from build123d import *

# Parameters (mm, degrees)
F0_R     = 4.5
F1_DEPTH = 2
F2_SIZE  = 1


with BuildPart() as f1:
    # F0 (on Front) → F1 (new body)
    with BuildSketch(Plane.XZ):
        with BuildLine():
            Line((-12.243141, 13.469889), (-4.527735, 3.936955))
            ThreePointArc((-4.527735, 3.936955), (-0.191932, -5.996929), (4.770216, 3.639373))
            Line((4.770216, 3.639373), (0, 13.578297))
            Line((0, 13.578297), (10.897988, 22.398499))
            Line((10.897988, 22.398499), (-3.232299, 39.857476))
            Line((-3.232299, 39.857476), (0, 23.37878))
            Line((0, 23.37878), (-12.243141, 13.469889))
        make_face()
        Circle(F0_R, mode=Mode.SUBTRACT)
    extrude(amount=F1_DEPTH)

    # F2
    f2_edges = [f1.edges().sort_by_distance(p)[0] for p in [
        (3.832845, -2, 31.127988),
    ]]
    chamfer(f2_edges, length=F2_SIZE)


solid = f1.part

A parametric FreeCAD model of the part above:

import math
import FreeCAD as App
import Part
import Sketcher

V = App.Vector
Q = App.Units.Quantity


def edges_at(feature, points):
    """Names of the edges that pass closest to the given points."""
    edges = feature.Shape.Edges
    near = lambda p: min(range(len(edges)), key=lambda i: edges[i].distToShape(Part.Vertex(*p))[0])
    return sorted({f"Edge{near(p) + 1}" for p in points})

doc = App.newDocument("Part")
body = doc.addObject("PartDesign::Body", "Body")

# Sketch on XZ plane
sketch1 = body.newObject("Sketcher::SketchObject", "Sketch")
sketch1.AttachmentSupport = (doc.getObject("XZ_Plane"), [""])
sketch1.MapMode = "FlatFace"
sketch1.addGeometry([
    Part.LineSegment(V(-12.243141, 13.469889, 0), V(-4.527735, 3.936955, 0)),  # 0
    Part.ArcOfCircle(Part.Circle(V(0, 0, 0), V(0, 0, 1), 6), math.radians(138.992397), math.radians(397.341339)),  # 1
    Part.LineSegment(V(4.770216, 3.639373, 0), V(0, 13.578297, 0)),  # 2
    Part.LineSegment(V(0, 13.578297, 0), V(10.897988, 22.398499, 0)),  # 3
    Part.LineSegment(V(10.897988, 22.398499, 0), V(-3.232299, 39.857476, 0)),  # 4
    Part.LineSegment(V(-3.232299, 39.857476, 0), V(0, 23.37878, 0)),  # 5
    Part.LineSegment(V(0, 23.37878, 0), V(-12.243141, 13.469889, 0)),  # 6
    Part.Circle(V(0, 0, 0), V(0, 0, 1), 4.5),  # 7
], False)
sketch1.addConstraint([
    Sketcher.Constraint("Coincident", 0, 2, 1, 1),
    Sketcher.Constraint("Coincident", 1, 2, 2, 1),
    Sketcher.Constraint("Coincident", 2, 2, 3, 1),
    Sketcher.Constraint("Coincident", 3, 2, 4, 1),
    Sketcher.Constraint("Coincident", 4, 2, 5, 1),
    Sketcher.Constraint("Coincident", 5, 2, 6, 1),
    Sketcher.Constraint("Coincident", 6, 2, 0, 1),
    Sketcher.Constraint("Coincident", 1, 3, -1, 1),
    Sketcher.Constraint("Coincident", 7, 3, -1, 1),
    Sketcher.Constraint("PointOnObject", 2, 2, -2),
    Sketcher.Constraint("PointOnObject", 5, 2, -2),
    Sketcher.Constraint("Perpendicular", 0, 3),
    Sketcher.Constraint("Perpendicular", 3, 4),
    Sketcher.Constraint("Perpendicular", 4, 6),
    Sketcher.Constraint("Diameter", 7, Q("9 mm")),
    Sketcher.Constraint("Radius", 1, Q("6 mm")),
    Sketcher.Constraint("DistanceY", -1, 1, 3, 2, Q("22.398499 mm")),
    Sketcher.Constraint("DistanceX", 4, 2, -1, 1, Q("3.232299 mm")),
    Sketcher.Constraint("Distance", 2, Q("11.02439 mm")),
    Sketcher.Constraint("Distance", 3, Q("14.020061 mm")),
    Sketcher.Constraint("DistanceY", -1, 1, 5, 2, Q("23.37878 mm")),
    Sketcher.Constraint("DistanceX", 6, 2, -1, 1, Q("12.243141 mm")),
    Sketcher.Constraint("DistanceY", -1, 1, 6, 2, Q("13.469889 mm")),
])
pad1 = body.newObject("PartDesign::Pad", "Pad")
pad1.Profile = sketch1
pad1.Length = 2
doc.recompute()

chamfer = body.newObject("PartDesign::Chamfer", "Chamfer")
chamfer.Base = (pad1, edges_at(pad1, [(3.833, -2, 31.128)]))
chamfer.Size = 1

doc.recompute()
